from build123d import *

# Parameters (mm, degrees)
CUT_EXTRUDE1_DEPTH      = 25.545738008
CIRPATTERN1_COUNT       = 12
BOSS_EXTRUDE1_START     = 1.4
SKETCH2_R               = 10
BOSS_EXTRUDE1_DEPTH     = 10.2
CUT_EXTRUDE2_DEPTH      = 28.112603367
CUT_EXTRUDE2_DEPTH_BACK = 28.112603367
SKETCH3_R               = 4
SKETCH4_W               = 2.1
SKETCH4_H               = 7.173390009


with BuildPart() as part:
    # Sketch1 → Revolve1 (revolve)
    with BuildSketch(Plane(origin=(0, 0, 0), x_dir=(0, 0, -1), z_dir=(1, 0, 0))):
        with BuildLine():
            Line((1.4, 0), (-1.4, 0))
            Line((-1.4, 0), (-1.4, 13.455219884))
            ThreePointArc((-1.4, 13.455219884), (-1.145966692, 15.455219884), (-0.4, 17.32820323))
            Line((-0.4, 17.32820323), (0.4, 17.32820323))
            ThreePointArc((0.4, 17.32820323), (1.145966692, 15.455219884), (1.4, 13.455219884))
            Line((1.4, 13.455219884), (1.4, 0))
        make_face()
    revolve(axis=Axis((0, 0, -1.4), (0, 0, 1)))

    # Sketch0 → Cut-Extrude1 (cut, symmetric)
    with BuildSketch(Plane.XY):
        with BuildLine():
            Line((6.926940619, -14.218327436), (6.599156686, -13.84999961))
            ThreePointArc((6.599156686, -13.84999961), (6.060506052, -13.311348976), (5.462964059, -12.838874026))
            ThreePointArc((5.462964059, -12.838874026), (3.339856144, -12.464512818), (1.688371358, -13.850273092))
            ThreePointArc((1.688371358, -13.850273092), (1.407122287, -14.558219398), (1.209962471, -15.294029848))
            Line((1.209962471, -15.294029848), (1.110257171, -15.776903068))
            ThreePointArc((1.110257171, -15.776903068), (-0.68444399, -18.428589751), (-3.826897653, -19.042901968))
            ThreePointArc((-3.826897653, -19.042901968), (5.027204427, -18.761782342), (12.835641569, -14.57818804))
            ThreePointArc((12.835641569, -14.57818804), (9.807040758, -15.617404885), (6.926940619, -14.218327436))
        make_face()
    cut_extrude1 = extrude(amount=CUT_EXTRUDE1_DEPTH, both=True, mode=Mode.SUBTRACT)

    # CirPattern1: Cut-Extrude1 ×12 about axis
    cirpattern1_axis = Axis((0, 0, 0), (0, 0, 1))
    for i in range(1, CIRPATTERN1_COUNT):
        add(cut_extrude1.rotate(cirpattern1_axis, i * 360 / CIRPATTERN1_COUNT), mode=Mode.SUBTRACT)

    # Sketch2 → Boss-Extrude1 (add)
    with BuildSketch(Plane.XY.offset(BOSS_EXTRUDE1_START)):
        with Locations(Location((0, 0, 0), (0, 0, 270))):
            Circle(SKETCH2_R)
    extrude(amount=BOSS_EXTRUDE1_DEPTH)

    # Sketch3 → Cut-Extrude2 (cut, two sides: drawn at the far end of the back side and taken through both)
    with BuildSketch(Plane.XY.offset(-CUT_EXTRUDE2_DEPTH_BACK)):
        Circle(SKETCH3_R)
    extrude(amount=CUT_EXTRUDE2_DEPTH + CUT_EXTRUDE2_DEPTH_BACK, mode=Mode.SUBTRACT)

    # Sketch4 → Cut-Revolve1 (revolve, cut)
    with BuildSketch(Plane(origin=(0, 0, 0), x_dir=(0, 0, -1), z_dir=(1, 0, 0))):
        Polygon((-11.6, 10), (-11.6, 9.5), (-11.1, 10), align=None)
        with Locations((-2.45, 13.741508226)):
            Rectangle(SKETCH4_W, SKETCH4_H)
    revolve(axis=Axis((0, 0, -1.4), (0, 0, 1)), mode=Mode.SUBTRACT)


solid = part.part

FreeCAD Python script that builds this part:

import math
import FreeCAD as App
import Part
import Sketcher

V = App.Vector

doc = App.newDocument("Part")
body = doc.addObject("PartDesign::Body", "Body")

# Sketch on YZ plane
sketch1 = doc.addObject("Sketcher::SketchObject", "Sketch")
body.addObject(sketch1)
sketch1.AttachmentSupport = (doc.YZ_Plane, [""])
sketch1.MapMode = "FlatFace"
sketch1.addGeometry([
    Part.LineSegment(V(0, 1.4, 0), V(0, -1.4, 0)),  # 0
    Part.LineSegment(V(0, -1.4, 0), V(13.5, -1.4, 0)),  # 1
    Part.ArcOfCircle(Part.Circle(V(13.5, 6.6, 0), V(0, 0, 1), 8), math.radians(-90), math.radians(-61)),  # 2
    Part.LineSegment(V(17.3, -0.4, 0), V(17.3, 0.4, 0)),  # 3
    Part.ArcOfCircle(Part.Circle(V(13.5, -6.6, 0), V(0, 0, 1), 8), math.radians(61), math.radians(90)),  # 4
    Part.LineSegment(V(13.5, 1.4, 0), V(0, 1.4, 0)),  # 5
], False)
sketch1.addConstraint([
    Sketcher.Constraint("Coincident", 0, 2, 1, 1),
    Sketcher.Constraint("Tangent", 1, 2, 2, 1),
    Sketcher.Constraint("Coincident", 2, 2, 3, 1),
    Sketcher.Constraint("Coincident", 3, 2, 4, 1),
    Sketcher.Constraint("Tangent", 4, 2, 5, 1),
    Sketcher.Constraint("Coincident", 5, 2, 0, 1),
    Sketcher.Constraint("Vertical", 0),
    Sketcher.Constraint("Horizontal", 1),
    Sketcher.Constraint("Vertical", 3),
    Sketcher.Constraint("Horizontal", 5),
    Sketcher.Constraint("Equal", 2, 4),
    Sketcher.Constraint("Symmetric", 0, 2, 5, 2, -1, 1),
    Sketcher.Constraint("Vertical", 2, 3, 4, 3),
    Sketcher.Constraint("Radius", 2, 8.0),
    Sketcher.Constraint("DistanceY", 0, 2, 0, 1, 2.8),
    Sketcher.Constraint("DistanceY", 3, 1, 3, 2, 0.8),
    Sketcher.Constraint("DistanceX", 1, 1, 1, 2, 13.45522),
])
revolution = doc.addObject("PartDesign::Revolution", "Revolution")
body.addObject(revolution)
revolution.Profile = sketch1
revolution.ReferenceAxis = (sketch1, ["V_Axis"])
revolution.Angle = 360

# Sketch on XY plane
sketch2 = doc.addObject("Sketcher::SketchObject", "Sketch001")
body.addObject(sketch2)
sketch2.AttachmentSupport = (doc.XY_Plane, [""])
sketch2.MapMode = "FlatFace"
sketch2.addGeometry([
    Part.LineSegment(V(6.93, -14.22, 0), V(6.6, -13.85, 0)),  # 0
    Part.ArcOfCircle(Part.Circle(V(1.71, -18.2, 0), V(0, 0, 1), 6.55), math.radians(41.67), math.radians(55)),  # 1
    Part.ArcOfCircle(Part.Circle(V(4, -14.93, 0), V(0, 0, 1), 2.55), math.radians(55), math.radians(155)),  # 2
    Part.ArcOfCircle(Part.Circle(V(7.63, -16.62, 0), V(0, 0, 1), 6.55), math.radians(155), math.radians(168.33)),  # 3
    Part.LineSegment(V(1.21, -15.29, 0), V(1.11, -15.78, 0)),  # 4
    Part.ArcOfCircle(Part.Circle(V(-3, -14.93, 0), V(0, 0, 1), 4.2), math.radians(-101), math.radians(-12)),  # 5
    Part.ArcOfCircle(Part.Circle(V(0, 0, 0), V(0, 0, 1), 19.42), math.radians(-101), math.radians(-49)),  # 6
    Part.ArcOfCircle(Part.Circle(V(10.06, -11.43, 0), V(0, 0, 1), 4.2), math.radians(-138), math.radians(-49)),  # 7
], False)
sketch2.addConstraint([
    Sketcher.Constraint("Tangent", 0, 2, 1, 1),
    Sketcher.Constraint("Tangent", 1, 2, 2, 1),
    Sketcher.Constraint("Tangent", 2, 2, 3, 1),
    Sketcher.Constraint("Tangent", 3, 2, 4, 1),
    Sketcher.Constraint("Tangent", 4, 2, 5, 2),
    Sketcher.Constraint("Tangent", 5, 1, 6, 1),
    Sketcher.Constraint("Tangent", 6, 2, 7, 2),
    Sketcher.Constraint("Tangent", 7, 1, 0, 1),
    Sketcher.Constraint("Coincident", 6, 3, -1, 1),
    Sketcher.Constraint("Equal", 1, 3),
    Sketcher.Constraint("Equal", 5, 7),
    Sketcher.Constraint("Horizontal", 2, 3, 5, 3),
    Sketcher.Constraint("Equal", 0, 4),
    Sketcher.Constraint("DistanceX", -1, 1, 2, 3, 4.0),
    Sketcher.Constraint("DistanceX", 5, 3, -1, 1, 3.0),
    Sketcher.Constraint("Radius", 1, 6.5506),
    Sketcher.Constraint("Radius", 2, 2.5506),
    Sketcher.Constraint("DistanceY", 2, 3, 7, 3, 3.5),
    Sketcher.Constraint("DistanceY", 0, 2, -1, 1, 13.85),
    Sketcher.Constraint("Radius", 5, 4.196964),
    Sketcher.Constraint("Radius", 6, 19.423626),
])
pocket1 = doc.addObject("PartDesign::Pocket", "Pocket")
body.addObject(pocket1)
pocket1.Profile = sketch2
pocket1.Length = 51.091476
pocket1.Midplane = True
doc.recompute()

polarpattern = doc.addObject("PartDesign::PolarPattern", "PolarPattern")
body.addObject(polarpattern)
polarpattern.Originals = [pocket1]
polarpattern.Axis = (doc.Z_Axis, [""])
polarpattern.Angle = 360
polarpattern.Occurrences = 12
body.Tip = polarpattern

# Sketch on XY plane
sketch3 = doc.addObject("Sketcher::SketchObject", "Sketch002")
body.addObject(sketch3)
sketch3.AttachmentSupport = (doc.XY_Plane, [""])
sketch3.MapMode = "FlatFace"
sketch3.AttachmentOffset = App.Placement(V(0, 0, 1.4), App.Rotation())
sketch3.addGeometry(Part.Circle(V(0, 0, 0), V(0, 0, 1), 10), False)
sketch3.addConstraint([
    Sketcher.Constraint("Coincident", 0, 3, -1, 1),
    Sketcher.Constraint("Diameter", 0, 20.0),
])
pad1 = doc.addObject("PartDesign::Pad", "Pad")
body.addObject(pad1)
pad1.Profile = sketch3
pad1.Length = 10.2

# Sketch on XY plane
sketch4 = doc.addObject("Sketcher::SketchObject", "Sketch003")
body.addObject(sketch4)
sketch4.AttachmentSupport = (doc.XY_Plane, [""])
sketch4.MapMode = "FlatFace"
sketch4.addGeometry(Part.Circle(V(0, 0, 0), V(0, 0, 1), 4), False)
sketch4.addConstraint([
    Sketcher.Constraint("Coincident", 0, 3, -1, 1),
    Sketcher.Constraint("Diameter", 0, 8.0),
])
pocket2 = doc.addObject("PartDesign::Pocket", "Pocket001")
body.addObject(pocket2)
pocket2.Profile = sketch4
pocket2.Type = "ThroughAll"
pocket2.Midplane = True

# Sketch on YZ plane
sketch5 = doc.addObject("Sketcher::SketchObject", "Sketch004")
body.addObject(sketch5)
sketch5.AttachmentSupport = (doc.YZ_Plane, [""])
sketch5.MapMode = "FlatFace"
sketch5.addGeometry([
    Part.LineSegment(V(10, 11.6, 0), V(9.5, 11.6, 0)),  # 0
    Part.LineSegment(V(9.5, 11.6, 0), V(10, 11.1, 0)),  # 1
    Part.LineSegment(V(10, 11.1, 0), V(10, 11.6, 0)),  # 2
    Part.LineSegment(V(17.3, 3.5, 0), V(10.2, 3.5, 0)),  # 3
    Part.LineSegment(V(10.2, 3.5, 0), V(10.2, 1.4, 0)),  # 4
    Part.LineSegment(V(10.2, 1.4, 0), V(17.3, 1.4, 0)),  # 5
    Part.LineSegment(V(17.3, 1.4, 0), V(17.3, 3.5, 0)),  # 6
], False)
sketch5.addConstraint([
    Sketcher.Constraint("Coincident", 0, 2, 1, 1),
    Sketcher.Constraint("Coincident", 1, 2, 2, 1),
    Sketcher.Constraint("Coincident", 2, 2, 0, 1),
    Sketcher.Constraint("Coincident", 3, 2, 4, 1),
    Sketcher.Constraint("Coincident", 4, 2, 5, 1),
    Sketcher.Constraint("Coincident", 5, 2, 6, 1),
    Sketcher.Constraint("Coincident", 6, 2, 3, 1),
    Sketcher.Constraint("Horizontal", 0),
    Sketcher.Constraint("Vertical", 2),
    Sketcher.Constraint("Horizontal", 3),
    Sketcher.Constraint("Vertical", 4),
    Sketcher.Constraint("Horizontal", 5),
    Sketcher.Constraint("Vertical", 6),
    Sketcher.Constraint("Equal", 0, 2),
    Sketcher.Constraint("DistanceX", 0, 2, 0, 1, 0.5),
    Sketcher.Constraint("DistanceY", 4, 2, 4, 1, 2.1),
    Sketcher.Constraint("DistanceX", -1, 1, 1, 2, 10.0),
    Sketcher.Constraint("DistanceY", -1, 1, 0, 2, 11.6),
    Sketcher.Constraint("DistanceY", -1, 1, 3, 2, 3.5),
    Sketcher.Constraint("DistanceX", 3, 2, 3, 1, 7.17339),
    Sketcher.Constraint("DistanceX", -1, 1, 3, 2, 10.154813),
])
groove = doc.addObject("PartDesign::Groove", "Groove")
body.addObject(groove)
groove.Profile = sketch5
groove.ReferenceAxis = (sketch5, ["V_Axis"])
groove.Angle = 360

doc.recompute()
